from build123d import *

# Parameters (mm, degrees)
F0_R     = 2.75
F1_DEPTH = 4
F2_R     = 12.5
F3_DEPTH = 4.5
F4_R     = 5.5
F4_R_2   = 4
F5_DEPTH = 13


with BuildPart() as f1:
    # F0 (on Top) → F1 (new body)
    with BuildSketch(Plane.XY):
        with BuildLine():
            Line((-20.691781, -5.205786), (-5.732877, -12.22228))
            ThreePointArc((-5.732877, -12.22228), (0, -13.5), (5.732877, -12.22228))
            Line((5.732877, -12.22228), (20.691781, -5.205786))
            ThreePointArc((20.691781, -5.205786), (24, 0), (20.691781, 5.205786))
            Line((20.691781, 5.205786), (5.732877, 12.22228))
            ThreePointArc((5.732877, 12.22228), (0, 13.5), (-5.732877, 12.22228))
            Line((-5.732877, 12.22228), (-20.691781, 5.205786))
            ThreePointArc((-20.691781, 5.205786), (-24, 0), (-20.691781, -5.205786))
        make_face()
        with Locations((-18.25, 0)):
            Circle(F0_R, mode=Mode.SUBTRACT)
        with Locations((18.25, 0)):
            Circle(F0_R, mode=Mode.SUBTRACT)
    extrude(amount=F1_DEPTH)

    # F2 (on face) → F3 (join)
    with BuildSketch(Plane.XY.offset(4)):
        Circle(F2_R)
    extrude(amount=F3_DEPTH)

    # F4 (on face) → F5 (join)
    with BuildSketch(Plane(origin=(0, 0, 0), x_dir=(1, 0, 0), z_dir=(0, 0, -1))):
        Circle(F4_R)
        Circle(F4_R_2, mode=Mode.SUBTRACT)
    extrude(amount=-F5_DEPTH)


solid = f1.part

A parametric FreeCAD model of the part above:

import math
import FreeCAD as App
import Part
import Sketcher
from FreeCAD import Vector

doc = App.newDocument("Part")
params = doc.addObject("Spreadsheet::Sheet", "Params")
for row, (alias, value) in enumerate([
    ("sketch1_diameter", "5.5 mm"),
    ("sketch1_radius", "5.75 mm"),
    ("pad1_length", "4 mm"),
    ("sketch2_diameter", "25 mm"),
    ("pad2_length", "4.5 mm"),
    ("sketch3_diameter", "11 mm"),
    ("sketch3_diameter2", "8 mm"),
    ("pad3_length", "13 mm"),
], start=1):
    params.set(f"A{row}", alias)
    params.set(f"B{row}", "=" + value)
    params.setAlias(f"B{row}", alias)

body = doc.addObject("PartDesign::Body", "Body")

sketch1 = body.newObject("Sketcher::SketchObject", "Sketch")
sketch1.AttachmentSupport = (doc.getObject("XY_Plane"), [""])
sketch1.MapMode = "FlatFace"
sketch1.addGeometry([
    Part.LineSegment(Vector(-20.7, -5.2, 0), Vector(-5.7, -12.2, 0)),
    Part.ArcOfCircle(Part.Circle(Vector(0, 0, 0), Vector(0, 0, 1), 13.5), math.radians(-115), math.radians(-65)),
    Part.LineSegment(Vector(5.7, -12.2, 0), Vector(20.7, -5.2, 0)),
    Part.ArcOfCircle(Part.Circle(Vector(18.2, 0, 0), Vector(0, 0, 1), 5.8), math.radians(-65), math.radians(65)),
    Part.LineSegment(Vector(20.7, 5.2, 0), Vector(5.7, 12.2, 0)),
    Part.ArcOfCircle(Part.Circle(Vector(0, 0, 0), Vector(0, 0, 1), 13.5), math.radians(65), math.radians(115)),
    Part.LineSegment(Vector(-5.7, 12.2, 0), Vector(-20.7, 5.2, 0)),
    Part.ArcOfCircle(Part.Circle(Vector(-18.2, 0, 0), Vector(0, 0, 1), 5.8), math.radians(115), math.radians(245)),
    Part.Circle(Vector(-18.2, 0, 0), Vector(0, 0, 1), 2.8),
    Part.Circle(Vector(18.2, 0, 0), Vector(0, 0, 1), 2.8),
], False)
sketch1.addConstraint([
    Sketcher.Constraint("Tangent", 0, 2, 1, 1),
    Sketcher.Constraint("Tangent", 1, 2, 2, 1),
    Sketcher.Constraint("Tangent", 2, 2, 3, 1),
    Sketcher.Constraint("Tangent", 3, 2, 4, 1),
    Sketcher.Constraint("Tangent", 4, 2, 5, 1),
    Sketcher.Constraint("Tangent", 5, 2, 6, 1),
    Sketcher.Constraint("Tangent", 6, 2, 7, 1),
    Sketcher.Constraint("Tangent", 7, 2, 0, 1),
    Sketcher.Constraint("Coincident", 1, 3, -1, 1),
    Sketcher.Constraint("Coincident", 5, 3, -1, 1),
    Sketcher.Constraint("Coincident", 8, 3, 7, 3),
    Sketcher.Constraint("Coincident", 9, 3, 3, 3),
    Sketcher.Constraint("Equal", 1, 5),
    Sketcher.Constraint("Equal", 3, 7),
    Sketcher.Constraint("Equal", 8, 9),
    Sketcher.Constraint("Symmetric", 3, 3, 7, 3, -1, 1),
    Sketcher.Constraint("PointOnObject", 3, 3, -1),
    Sketcher.Constraint("Diameter", 8, 5.5),
    Sketcher.Constraint("Radius", 3, 5.75),
    Sketcher.Constraint("DistanceX", 7, 3, 3, 3, 36.499999),
    Sketcher.Constraint("Radius", 1, 13.500003),
])
sketch1.setExpression("Constraints[17]", "Params.sketch1_diameter")
sketch1.setExpression("Constraints[18]", "Params.sketch1_radius")
pad1 = body.newObject("PartDesign::Pad", "Pad")
pad1.Profile = sketch1
pad1.setExpression("Length", "Params.pad1_length")

sketch2 = body.newObject("Sketcher::SketchObject", "Sketch001")
sketch2.AttachmentSupport = (doc.getObject("XY_Plane"), [""])
sketch2.MapMode = "FlatFace"
sketch2.AttachmentOffset = App.Placement(Vector(0, 0, 4), App.Rotation())
sketch2.addGeometry(Part.Circle(Vector(0, 0, 0), Vector(0, 0, 1), 12), False)
sketch2.addConstraint([
    Sketcher.Constraint("Coincident", 0, 3, -1, 1),
    Sketcher.Constraint("Diameter", 0, 25.0),
])
sketch2.setExpression("Constraints[1]", "Params.sketch2_diameter")
pad2 = body.newObject("PartDesign::Pad", "Pad001")
pad2.Profile = sketch2
pad2.setExpression("Length", "Params.pad2_length")

sketch3 = body.newObject("Sketcher::SketchObject", "Sketch002")
sketch3.AttachmentSupport = (doc.getObject("XY_Plane"), [""])
sketch3.MapMode = "FlatFace"
sketch3.addGeometry([
    Part.Circle(Vector(0, 0, 0), Vector(0, 0, 1), 5.5),
    Part.Circle(Vector(0, 0, 0), Vector(0, 0, 1), 4),
], False)
sketch3.addConstraint([
    Sketcher.Constraint("Coincident", 0, 3, -1, 1),
    Sketcher.Constraint("Coincident", 1, 3, -1, 1),
    Sketcher.Constraint("Diameter", 0, 11.0),
    Sketcher.Constraint("Diameter", 1, 8.0),
])
sketch3.setExpression("Constraints[2]", "Params.sketch3_diameter")
sketch3.setExpression("Constraints[3]", "Params.sketch3_diameter2")
pad3 = body.newObject("PartDesign::Pad", "Pad002")
pad3.Profile = sketch3
pad3.setExpression("Length", "Params.pad3_length")

doc.recompute()
